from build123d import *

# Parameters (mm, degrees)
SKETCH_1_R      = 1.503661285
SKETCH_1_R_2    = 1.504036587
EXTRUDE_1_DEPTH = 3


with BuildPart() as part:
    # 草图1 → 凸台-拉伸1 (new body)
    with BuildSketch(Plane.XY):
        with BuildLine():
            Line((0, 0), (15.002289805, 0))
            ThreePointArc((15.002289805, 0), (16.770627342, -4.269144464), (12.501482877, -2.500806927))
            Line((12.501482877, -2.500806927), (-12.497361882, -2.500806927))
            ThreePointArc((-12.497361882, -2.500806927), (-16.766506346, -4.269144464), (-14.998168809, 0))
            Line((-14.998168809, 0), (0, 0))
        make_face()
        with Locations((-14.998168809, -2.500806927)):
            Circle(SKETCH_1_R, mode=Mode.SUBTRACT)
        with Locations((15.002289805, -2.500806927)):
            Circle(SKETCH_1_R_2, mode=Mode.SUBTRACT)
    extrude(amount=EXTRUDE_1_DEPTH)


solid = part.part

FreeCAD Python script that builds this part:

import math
import FreeCAD as App
import Part
import Sketcher

doc = App.newDocument("Part")
body = doc.addObject("PartDesign::Body", "Body")

# Sketch on XY plane
sketch1 = doc.addObject("Sketcher::SketchObject", "Sketch")
body.addObject(sketch1)
sketch1.AttachmentSupport = (doc.XY_Plane, [""])
sketch1.MapMode = "FlatFace"
sketch1.addGeometry([
    Part.ArcOfCircle(Part.Circle(App.Vector(15, -2.5, 0), App.Vector(0, 0, 1), 2.5), math.radians(180), math.radians(450)),  # 0
    Part.LineSegment(App.Vector(15, 0, 0), App.Vector(-15, 0, 0)),  # 1
    Part.ArcOfCircle(Part.Circle(App.Vector(-15, -2.5, 0), App.Vector(0, 0, 1), 2.5), math.radians(90), math.radians(360)),  # 2
    Part.LineSegment(App.Vector(-12.5, -2.5, 0), App.Vector(12.5, -2.5, 0)),  # 3
    Part.Circle(App.Vector(15, -2.5, 0), App.Vector(0, 0, 1), 1.5),  # 4
    Part.Circle(App.Vector(-15, -2.5, 0), App.Vector(0, 0, 1), 1.5),  # 5
], False)
sketch1.addConstraint([
    Sketcher.Constraint("Tangent", 0, 2, 1, 1),
    Sketcher.Constraint("Tangent", 1, 2, 2, 1),
    Sketcher.Constraint("Coincident", 2, 2, 3, 1),
    Sketcher.Constraint("Coincident", 3, 2, 0, 1),
    Sketcher.Constraint("Horizontal", 1),
    Sketcher.Constraint("Horizontal", 3),
    Sketcher.Constraint("Coincident", 4, 3, 0, 3),
    Sketcher.Constraint("Coincident", 5, 3, 2, 3),
    Sketcher.Constraint("Equal", 0, 2),
    Sketcher.Constraint("PointOnObject", 0, 2, -1),
    Sketcher.Constraint("Horizontal", 5, 3, 2, 2),
    Sketcher.Constraint("Diameter", 4, 3.008073),
    Sketcher.Constraint("Diameter", 5, 3.007323),
    Sketcher.Constraint("Radius", 0, 2.500807),
    Sketcher.Constraint("DistanceX", 1, 2, 1, 1, 30.000459),
    Sketcher.Constraint("DistanceX", -1, 1, 0, 3, 15.00229),
])
pad1 = doc.addObject("PartDesign::Pad", "Pad")
body.addObject(pad1)
pad1.Profile = sketch1
pad1.Length = 3

doc.recompute()
